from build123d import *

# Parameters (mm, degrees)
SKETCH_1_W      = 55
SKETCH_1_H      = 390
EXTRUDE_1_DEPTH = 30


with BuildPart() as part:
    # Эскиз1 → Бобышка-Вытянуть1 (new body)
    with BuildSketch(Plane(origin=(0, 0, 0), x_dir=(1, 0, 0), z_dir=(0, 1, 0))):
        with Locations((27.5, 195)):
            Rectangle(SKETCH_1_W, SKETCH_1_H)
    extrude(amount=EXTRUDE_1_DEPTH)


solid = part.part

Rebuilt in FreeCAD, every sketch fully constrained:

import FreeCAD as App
import Part
import Sketcher

V = App.Vector
Q = App.Units.Quantity


def add_polygon(sketch, points):
    """Adds a closed chain of lines whose ends are joined by coincident constraints."""
    first, n = sketch.GeometryCount, len(points)
    for a, b in zip(points, points[1:] + points[:1]):
        sketch.addGeometry(Part.LineSegment(App.Vector(*a, 0), App.Vector(*b, 0)), False)
    for i in range(n):
        sketch.addConstraint(Sketcher.Constraint("Coincident", first + i, 2, first + (i + 1) % n, 1))

doc = App.newDocument("Part")
params = doc.addObject("Spreadsheet::Sheet", "Params")
for row, (alias, value) in enumerate([
    ("sketch1_width", "55 mm"),
    ("sketch1_height", "390 mm"),
    ("pad1_length", "30 mm"),
], start=1):
    params.set(f"A{row}", alias)
    params.set(f"B{row}", "=" + value)
    params.setAlias(f"B{row}", alias)

body = doc.addObject("PartDesign::Body", "Body")

sketch1 = body.newObject("Sketcher::SketchObject", "Sketch")
sketch1.AttachmentSupport = (doc.getObject("XZ_Plane"), [""])
sketch1.MapMode = "FlatFace"
add_polygon(sketch1, [(0, -390), (0, 0), (55, 0), (55, -390)])
sketch1.addConstraint([
    Sketcher.Constraint("Vertical", 0),
    Sketcher.Constraint("Horizontal", 1),
    Sketcher.Constraint("Vertical", 2),
    Sketcher.Constraint("Horizontal", 3),
    Sketcher.Constraint("Coincident", 0, 2, -1, 1),
    Sketcher.Constraint("DistanceX", 1, 1, 1, 2, Q("55 mm")),
    Sketcher.Constraint("DistanceY", 0, 1, 0, 2, Q("390 mm")),
])
sketch1.setExpression("Constraints[9]", "Params.sketch1_width")
sketch1.setExpression("Constraints[10]", "Params.sketch1_height")
pad1 = body.newObject("PartDesign::Pad", "Pad")
pad1.Profile = sketch1
pad1.setExpression("Length", "Params.pad1_length")
pad1.Reversed = True

doc.recompute()
